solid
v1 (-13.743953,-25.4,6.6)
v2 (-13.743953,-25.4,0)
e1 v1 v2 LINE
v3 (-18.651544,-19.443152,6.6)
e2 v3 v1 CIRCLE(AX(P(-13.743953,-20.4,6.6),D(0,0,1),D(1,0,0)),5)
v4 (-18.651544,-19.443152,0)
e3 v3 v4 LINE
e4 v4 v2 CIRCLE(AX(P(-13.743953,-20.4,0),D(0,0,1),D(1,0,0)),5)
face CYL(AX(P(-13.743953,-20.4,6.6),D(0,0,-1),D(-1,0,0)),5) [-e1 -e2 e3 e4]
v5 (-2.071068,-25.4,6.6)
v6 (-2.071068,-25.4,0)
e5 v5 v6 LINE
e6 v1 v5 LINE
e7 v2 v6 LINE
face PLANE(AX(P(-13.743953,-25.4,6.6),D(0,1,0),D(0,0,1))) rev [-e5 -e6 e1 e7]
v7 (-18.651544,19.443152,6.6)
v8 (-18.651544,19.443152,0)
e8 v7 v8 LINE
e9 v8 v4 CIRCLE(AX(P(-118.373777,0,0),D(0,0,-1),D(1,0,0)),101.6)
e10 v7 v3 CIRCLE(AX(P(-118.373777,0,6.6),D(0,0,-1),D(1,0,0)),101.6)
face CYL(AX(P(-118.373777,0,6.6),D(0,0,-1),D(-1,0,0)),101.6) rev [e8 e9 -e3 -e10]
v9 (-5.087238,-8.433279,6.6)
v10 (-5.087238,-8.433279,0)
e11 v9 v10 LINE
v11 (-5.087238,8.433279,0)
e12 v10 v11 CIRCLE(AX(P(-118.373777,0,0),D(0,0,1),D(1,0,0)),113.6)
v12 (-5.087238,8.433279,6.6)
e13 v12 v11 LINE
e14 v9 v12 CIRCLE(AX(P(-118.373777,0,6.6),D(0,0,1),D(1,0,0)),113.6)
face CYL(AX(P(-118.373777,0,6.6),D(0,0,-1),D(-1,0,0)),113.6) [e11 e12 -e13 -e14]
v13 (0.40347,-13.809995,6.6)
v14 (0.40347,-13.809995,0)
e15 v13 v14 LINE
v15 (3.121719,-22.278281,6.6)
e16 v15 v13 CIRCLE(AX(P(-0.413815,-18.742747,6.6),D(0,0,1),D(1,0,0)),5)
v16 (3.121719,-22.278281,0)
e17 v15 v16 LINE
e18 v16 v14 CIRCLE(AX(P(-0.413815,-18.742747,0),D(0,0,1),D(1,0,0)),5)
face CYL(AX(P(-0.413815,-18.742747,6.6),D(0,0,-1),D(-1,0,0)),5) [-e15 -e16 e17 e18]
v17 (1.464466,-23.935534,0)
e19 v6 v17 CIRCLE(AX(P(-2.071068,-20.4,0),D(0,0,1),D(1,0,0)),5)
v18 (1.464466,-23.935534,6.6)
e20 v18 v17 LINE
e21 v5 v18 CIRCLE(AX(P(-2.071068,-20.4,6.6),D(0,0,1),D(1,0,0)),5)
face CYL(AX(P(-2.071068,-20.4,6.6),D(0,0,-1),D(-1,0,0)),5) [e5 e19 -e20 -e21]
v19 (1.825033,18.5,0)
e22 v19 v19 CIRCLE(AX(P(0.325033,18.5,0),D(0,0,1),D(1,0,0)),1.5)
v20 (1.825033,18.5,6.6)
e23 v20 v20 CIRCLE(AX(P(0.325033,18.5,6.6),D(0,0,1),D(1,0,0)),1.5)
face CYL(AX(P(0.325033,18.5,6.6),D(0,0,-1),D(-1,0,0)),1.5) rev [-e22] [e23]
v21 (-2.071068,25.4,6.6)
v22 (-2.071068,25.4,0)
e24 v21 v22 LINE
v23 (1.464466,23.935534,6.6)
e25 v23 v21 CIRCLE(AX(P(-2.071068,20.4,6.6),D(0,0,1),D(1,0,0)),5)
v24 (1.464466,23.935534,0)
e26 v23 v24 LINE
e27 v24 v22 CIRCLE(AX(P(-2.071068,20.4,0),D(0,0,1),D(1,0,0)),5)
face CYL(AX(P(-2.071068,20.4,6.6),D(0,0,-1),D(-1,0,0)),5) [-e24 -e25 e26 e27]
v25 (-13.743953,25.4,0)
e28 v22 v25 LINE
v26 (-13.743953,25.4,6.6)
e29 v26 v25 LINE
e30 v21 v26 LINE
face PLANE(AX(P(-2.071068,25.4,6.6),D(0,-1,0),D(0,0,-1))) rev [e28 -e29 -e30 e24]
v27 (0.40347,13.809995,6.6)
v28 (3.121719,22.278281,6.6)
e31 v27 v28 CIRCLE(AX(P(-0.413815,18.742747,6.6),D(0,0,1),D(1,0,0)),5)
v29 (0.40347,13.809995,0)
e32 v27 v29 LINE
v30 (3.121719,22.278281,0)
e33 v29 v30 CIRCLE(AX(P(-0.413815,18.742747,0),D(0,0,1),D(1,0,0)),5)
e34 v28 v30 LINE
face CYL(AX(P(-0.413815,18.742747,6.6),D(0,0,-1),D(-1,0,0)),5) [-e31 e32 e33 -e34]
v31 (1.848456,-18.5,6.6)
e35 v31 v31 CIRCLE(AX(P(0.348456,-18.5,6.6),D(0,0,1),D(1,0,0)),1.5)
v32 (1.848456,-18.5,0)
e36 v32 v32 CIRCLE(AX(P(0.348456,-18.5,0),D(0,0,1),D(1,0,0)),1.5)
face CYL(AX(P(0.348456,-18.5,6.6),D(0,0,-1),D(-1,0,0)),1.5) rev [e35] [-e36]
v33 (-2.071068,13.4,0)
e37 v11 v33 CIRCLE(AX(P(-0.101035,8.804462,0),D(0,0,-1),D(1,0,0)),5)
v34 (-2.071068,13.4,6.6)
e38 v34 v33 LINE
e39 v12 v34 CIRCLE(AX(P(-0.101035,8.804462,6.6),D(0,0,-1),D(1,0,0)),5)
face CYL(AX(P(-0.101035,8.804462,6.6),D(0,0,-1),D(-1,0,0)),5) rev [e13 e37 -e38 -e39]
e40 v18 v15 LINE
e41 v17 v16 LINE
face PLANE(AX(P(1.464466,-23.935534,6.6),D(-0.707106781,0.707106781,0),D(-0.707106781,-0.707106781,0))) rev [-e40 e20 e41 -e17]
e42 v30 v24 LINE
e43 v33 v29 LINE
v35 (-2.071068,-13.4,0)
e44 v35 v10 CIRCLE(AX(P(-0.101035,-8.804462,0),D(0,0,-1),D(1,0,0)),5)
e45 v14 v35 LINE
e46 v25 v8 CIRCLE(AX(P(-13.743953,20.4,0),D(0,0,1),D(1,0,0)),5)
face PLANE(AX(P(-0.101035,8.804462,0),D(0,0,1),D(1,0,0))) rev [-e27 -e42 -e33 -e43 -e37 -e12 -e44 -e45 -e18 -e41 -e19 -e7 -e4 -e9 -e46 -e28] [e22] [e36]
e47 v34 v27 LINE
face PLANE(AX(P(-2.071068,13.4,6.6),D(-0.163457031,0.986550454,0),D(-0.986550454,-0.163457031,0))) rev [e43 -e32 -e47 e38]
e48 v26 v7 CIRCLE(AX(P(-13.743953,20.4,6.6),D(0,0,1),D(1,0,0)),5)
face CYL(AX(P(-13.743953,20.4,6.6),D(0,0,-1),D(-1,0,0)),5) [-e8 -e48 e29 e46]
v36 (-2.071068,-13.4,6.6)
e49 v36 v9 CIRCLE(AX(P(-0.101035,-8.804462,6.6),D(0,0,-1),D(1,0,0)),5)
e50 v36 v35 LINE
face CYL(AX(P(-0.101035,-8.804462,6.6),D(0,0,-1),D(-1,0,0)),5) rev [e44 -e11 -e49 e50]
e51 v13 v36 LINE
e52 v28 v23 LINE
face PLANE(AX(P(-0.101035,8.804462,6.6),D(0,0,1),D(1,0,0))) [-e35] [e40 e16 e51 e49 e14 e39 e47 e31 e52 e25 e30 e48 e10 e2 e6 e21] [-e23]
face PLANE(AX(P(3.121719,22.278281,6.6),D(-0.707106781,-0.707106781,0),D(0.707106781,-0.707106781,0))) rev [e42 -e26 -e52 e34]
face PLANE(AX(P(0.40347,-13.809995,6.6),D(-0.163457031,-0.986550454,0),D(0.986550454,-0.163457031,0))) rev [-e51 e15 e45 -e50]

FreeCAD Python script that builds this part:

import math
import FreeCAD as App
import Part
import Sketcher

V = App.Vector
Q = App.Units.Quantity

doc = App.newDocument("Part")
params = doc.addObject("Spreadsheet::Sheet", "Params")
for row, (alias, value) in enumerate([
    ("sketch1_diameter", "3 mm"),
    ("sketch1_radius", "5 mm"),
    ("sketch1_radius2", "113.6 mm"),
    ("sketch1_radius3", "101.6 mm"),
    ("pad1_length", "6.6 mm"),
], start=1):
    params.set(f"A{row}", alias)
    params.set(f"B{row}", "=" + value)
    params.setAlias(f"B{row}", alias)

body = doc.addObject("PartDesign::Body", "Body")

# Sketch on XY plane
sketch1 = doc.addObject("Sketcher::SketchObject", "Sketch")
body.addObject(sketch1)
sketch1.AttachmentSupport = (doc.XY_Plane, [""])
sketch1.MapMode = "FlatFace"
sketch1.addGeometry(Part.LineSegment(V(0.4, -13.8, 0), V(-2.1, -13.4, 0)), False)
sketch1.addGeometry(Part.ArcOfCircle(Part.Circle(V(-0.1, -8.8, 0), V(0, 0, 1), 5), math.radians(176), math.radians(247)), False)
sketch1.addGeometry(Part.ArcOfCircle(Part.Circle(V(-118.4, 0, 0), V(0, 0, 1), 113.6), math.radians(-4.26), math.radians(4.26)), False)
sketch1.addGeometry(Part.ArcOfCircle(Part.Circle(V(-0.1, 8.8, 0), V(0, 0, 1), 5), math.radians(113), math.radians(184)), False)
sketch1.addGeometry(Part.LineSegment(V(-2.1, 13.4, 0), V(0.4, 13.8, 0)), False)
sketch1.addGeometry(Part.ArcOfCircle(Part.Circle(V(-0.4, 18.7, 0), V(0, 0, 1), 5), math.radians(-81), math.radians(45)), False)
sketch1.addGeometry(Part.LineSegment(V(3.1, 22.3, 0), V(1.5, 23.9, 0)), False)
sketch1.addGeometry(Part.ArcOfCircle(Part.Circle(V(-2.1, 20.4, 0), V(0, 0, 1), 5), math.radians(45), math.radians(90)), False)
sketch1.addGeometry(Part.LineSegment(V(-2.1, 25.4, 0), V(-13.7, 25.4, 0)), False)
sketch1.addGeometry(Part.ArcOfCircle(Part.Circle(V(-13.7, 20.4, 0), V(0, 0, 1), 5), math.radians(90), math.radians(191)), False)
sketch1.addGeometry(Part.ArcOfCircle(Part.Circle(V(-118.4, 0, 0), V(0, 0, 1), 101.6), math.radians(-11), math.radians(11)), False)
sketch1.addGeometry(Part.ArcOfCircle(Part.Circle(V(-13.7, -20.4, 0), V(0, 0, 1), 5), math.radians(169), math.radians(270)), False)
sketch1.addGeometry(Part.LineSegment(V(-13.7, -25.4, 0), V(-2.1, -25.4, 0)), False)
sketch1.addGeometry(Part.ArcOfCircle(Part.Circle(V(-2.1, -20.4, 0), V(0, 0, 1), 5), math.radians(-90), math.radians(-45)), False)
sketch1.addGeometry(Part.LineSegment(V(1.5, -23.9, 0), V(3.1, -22.3, 0)), False)
sketch1.addGeometry(Part.ArcOfCircle(Part.Circle(V(-0.4, -18.7, 0), V(0, 0, 1), 5), math.radians(-45), math.radians(81)), False)
sketch1.addGeometry(Part.Circle(V(0.3, -18.5, 0), V(0, 0, 1), 1.5), False)
sketch1.addGeometry(Part.Circle(V(0.3, 18.5, 0), V(0, 0, 1), 1.5), False)
sketch1.addConstraint(Sketcher.Constraint("Coincident", 0, 2, 1, 2))
sketch1.addConstraint(Sketcher.Constraint("Tangent", 1, 1, 2, 1))
sketch1.addConstraint(Sketcher.Constraint("Tangent", 2, 2, 3, 2))
sketch1.addConstraint(Sketcher.Constraint("Coincident", 3, 1, 4, 1))
sketch1.addConstraint(Sketcher.Constraint("Tangent", 4, 2, 5, 1))
sketch1.addConstraint(Sketcher.Constraint("Tangent", 5, 2, 6, 1))
sketch1.addConstraint(Sketcher.Constraint("Tangent", 6, 2, 7, 1))
sketch1.addConstraint(Sketcher.Constraint("Tangent", 7, 2, 8, 1))
sketch1.addConstraint(Sketcher.Constraint("Tangent", 8, 2, 9, 1))
sketch1.addConstraint(Sketcher.Constraint("Tangent", 9, 2, 10, 2))
sketch1.addConstraint(Sketcher.Constraint("Tangent", 10, 1, 11, 1))
sketch1.addConstraint(Sketcher.Constraint("Tangent", 11, 2, 12, 1))
sketch1.addConstraint(Sketcher.Constraint("Tangent", 12, 2, 13, 1))
sketch1.addConstraint(Sketcher.Constraint("Tangent", 13, 2, 14, 1))
sketch1.addConstraint(Sketcher.Constraint("Tangent", 14, 2, 15, 1))
sketch1.addConstraint(Sketcher.Constraint("Tangent", 15, 2, 0, 1))
sketch1.addConstraint(Sketcher.Constraint("Horizontal", 8))
sketch1.addConstraint(Sketcher.Constraint("Horizontal", 12))
sketch1.addConstraint(Sketcher.Constraint("Coincident", 10, 3, 2, 3))
sketch1.addConstraint(Sketcher.Constraint("Equal", 1, 3))
sketch1.addConstraint(Sketcher.Constraint("Equal", 3, 5))
sketch1.addConstraint(Sketcher.Constraint("Equal", 5, 7))
sketch1.addConstraint(Sketcher.Constraint("Equal", 7, 9))
sketch1.addConstraint(Sketcher.Constraint("Equal", 9, 11))
sketch1.addConstraint(Sketcher.Constraint("Equal", 11, 13))
sketch1.addConstraint(Sketcher.Constraint("Equal", 13, 15))
sketch1.addConstraint(Sketcher.Constraint("Equal", 16, 17))
sketch1.addConstraint(Sketcher.Constraint("Symmetric", 1, 3, 3, 3, -1))
sketch1.addConstraint(Sketcher.Constraint("Symmetric", 7, 3, 13, 3, -1))
sketch1.addConstraint(Sketcher.Constraint("Symmetric", 5, 3, 15, 3, -1))
sketch1.addConstraint(Sketcher.Constraint("Perpendicular", 6, 14))
sketch1.addConstraint(Sketcher.Constraint("Vertical", 13, 3, 0, 2))
sketch1.addConstraint(Sketcher.Constraint("Vertical", 0, 2, 3, 1))
sketch1.addConstraint(Sketcher.Constraint("Diameter", 16, Q("3 mm")))
sketch1.addConstraint(Sketcher.Constraint("Radius", 1, Q("5 mm")))
sketch1.addConstraint(Sketcher.Constraint("Radius", 2, Q("113.6 mm")))
sketch1.addConstraint(Sketcher.Constraint("Radius", 10, Q("101.6 mm")))
sketch1.addConstraint(Sketcher.Constraint("DistanceY", 13, 3, 0, 2, Q("7 mm")))
sketch1.addConstraint(Sketcher.Constraint("DistanceY", -1, 1, 7, 3, Q("20.4 mm")))
sketch1.addConstraint(Sketcher.Constraint("DistanceY", 16, 3, -1, 1, Q("18.5 mm")))
sketch1.addConstraint(Sketcher.Constraint("DistanceY", -1, 1, 17, 3, Q("18.5 mm")))
sketch1.addConstraint(Sketcher.Constraint("DistanceX", 7, 3, 17, 3, Q("2.396101 mm")))
sketch1.addConstraint(Sketcher.Constraint("Distance", 6, Q("2.343709 mm")))
sketch1.addConstraint(Sketcher.Constraint("DistanceX", 8, 2, 8, 1, Q("11.672886 mm")))
sketch1.addConstraint(Sketcher.Constraint("DistanceX", 1, 1, -1, 1, Q("5.087238 mm")))
sketch1.addConstraint(Sketcher.Constraint("DistanceX", 15, 3, 16, 3, Q("0.762271 mm")))
sketch1.setExpression("Constraints[33]", "Params.sketch1_diameter")
sketch1.setExpression("Constraints[34]", "Params.sketch1_radius")
sketch1.setExpression("Constraints[35]", "Params.sketch1_radius2")
sketch1.setExpression("Constraints[36]", "Params.sketch1_radius3")
pad1 = doc.addObject("PartDesign::Pad", "Pad")
body.addObject(pad1)
pad1.Profile = sketch1
pad1.setExpression("Length", "Params.pad1_length")

doc.recompute()
